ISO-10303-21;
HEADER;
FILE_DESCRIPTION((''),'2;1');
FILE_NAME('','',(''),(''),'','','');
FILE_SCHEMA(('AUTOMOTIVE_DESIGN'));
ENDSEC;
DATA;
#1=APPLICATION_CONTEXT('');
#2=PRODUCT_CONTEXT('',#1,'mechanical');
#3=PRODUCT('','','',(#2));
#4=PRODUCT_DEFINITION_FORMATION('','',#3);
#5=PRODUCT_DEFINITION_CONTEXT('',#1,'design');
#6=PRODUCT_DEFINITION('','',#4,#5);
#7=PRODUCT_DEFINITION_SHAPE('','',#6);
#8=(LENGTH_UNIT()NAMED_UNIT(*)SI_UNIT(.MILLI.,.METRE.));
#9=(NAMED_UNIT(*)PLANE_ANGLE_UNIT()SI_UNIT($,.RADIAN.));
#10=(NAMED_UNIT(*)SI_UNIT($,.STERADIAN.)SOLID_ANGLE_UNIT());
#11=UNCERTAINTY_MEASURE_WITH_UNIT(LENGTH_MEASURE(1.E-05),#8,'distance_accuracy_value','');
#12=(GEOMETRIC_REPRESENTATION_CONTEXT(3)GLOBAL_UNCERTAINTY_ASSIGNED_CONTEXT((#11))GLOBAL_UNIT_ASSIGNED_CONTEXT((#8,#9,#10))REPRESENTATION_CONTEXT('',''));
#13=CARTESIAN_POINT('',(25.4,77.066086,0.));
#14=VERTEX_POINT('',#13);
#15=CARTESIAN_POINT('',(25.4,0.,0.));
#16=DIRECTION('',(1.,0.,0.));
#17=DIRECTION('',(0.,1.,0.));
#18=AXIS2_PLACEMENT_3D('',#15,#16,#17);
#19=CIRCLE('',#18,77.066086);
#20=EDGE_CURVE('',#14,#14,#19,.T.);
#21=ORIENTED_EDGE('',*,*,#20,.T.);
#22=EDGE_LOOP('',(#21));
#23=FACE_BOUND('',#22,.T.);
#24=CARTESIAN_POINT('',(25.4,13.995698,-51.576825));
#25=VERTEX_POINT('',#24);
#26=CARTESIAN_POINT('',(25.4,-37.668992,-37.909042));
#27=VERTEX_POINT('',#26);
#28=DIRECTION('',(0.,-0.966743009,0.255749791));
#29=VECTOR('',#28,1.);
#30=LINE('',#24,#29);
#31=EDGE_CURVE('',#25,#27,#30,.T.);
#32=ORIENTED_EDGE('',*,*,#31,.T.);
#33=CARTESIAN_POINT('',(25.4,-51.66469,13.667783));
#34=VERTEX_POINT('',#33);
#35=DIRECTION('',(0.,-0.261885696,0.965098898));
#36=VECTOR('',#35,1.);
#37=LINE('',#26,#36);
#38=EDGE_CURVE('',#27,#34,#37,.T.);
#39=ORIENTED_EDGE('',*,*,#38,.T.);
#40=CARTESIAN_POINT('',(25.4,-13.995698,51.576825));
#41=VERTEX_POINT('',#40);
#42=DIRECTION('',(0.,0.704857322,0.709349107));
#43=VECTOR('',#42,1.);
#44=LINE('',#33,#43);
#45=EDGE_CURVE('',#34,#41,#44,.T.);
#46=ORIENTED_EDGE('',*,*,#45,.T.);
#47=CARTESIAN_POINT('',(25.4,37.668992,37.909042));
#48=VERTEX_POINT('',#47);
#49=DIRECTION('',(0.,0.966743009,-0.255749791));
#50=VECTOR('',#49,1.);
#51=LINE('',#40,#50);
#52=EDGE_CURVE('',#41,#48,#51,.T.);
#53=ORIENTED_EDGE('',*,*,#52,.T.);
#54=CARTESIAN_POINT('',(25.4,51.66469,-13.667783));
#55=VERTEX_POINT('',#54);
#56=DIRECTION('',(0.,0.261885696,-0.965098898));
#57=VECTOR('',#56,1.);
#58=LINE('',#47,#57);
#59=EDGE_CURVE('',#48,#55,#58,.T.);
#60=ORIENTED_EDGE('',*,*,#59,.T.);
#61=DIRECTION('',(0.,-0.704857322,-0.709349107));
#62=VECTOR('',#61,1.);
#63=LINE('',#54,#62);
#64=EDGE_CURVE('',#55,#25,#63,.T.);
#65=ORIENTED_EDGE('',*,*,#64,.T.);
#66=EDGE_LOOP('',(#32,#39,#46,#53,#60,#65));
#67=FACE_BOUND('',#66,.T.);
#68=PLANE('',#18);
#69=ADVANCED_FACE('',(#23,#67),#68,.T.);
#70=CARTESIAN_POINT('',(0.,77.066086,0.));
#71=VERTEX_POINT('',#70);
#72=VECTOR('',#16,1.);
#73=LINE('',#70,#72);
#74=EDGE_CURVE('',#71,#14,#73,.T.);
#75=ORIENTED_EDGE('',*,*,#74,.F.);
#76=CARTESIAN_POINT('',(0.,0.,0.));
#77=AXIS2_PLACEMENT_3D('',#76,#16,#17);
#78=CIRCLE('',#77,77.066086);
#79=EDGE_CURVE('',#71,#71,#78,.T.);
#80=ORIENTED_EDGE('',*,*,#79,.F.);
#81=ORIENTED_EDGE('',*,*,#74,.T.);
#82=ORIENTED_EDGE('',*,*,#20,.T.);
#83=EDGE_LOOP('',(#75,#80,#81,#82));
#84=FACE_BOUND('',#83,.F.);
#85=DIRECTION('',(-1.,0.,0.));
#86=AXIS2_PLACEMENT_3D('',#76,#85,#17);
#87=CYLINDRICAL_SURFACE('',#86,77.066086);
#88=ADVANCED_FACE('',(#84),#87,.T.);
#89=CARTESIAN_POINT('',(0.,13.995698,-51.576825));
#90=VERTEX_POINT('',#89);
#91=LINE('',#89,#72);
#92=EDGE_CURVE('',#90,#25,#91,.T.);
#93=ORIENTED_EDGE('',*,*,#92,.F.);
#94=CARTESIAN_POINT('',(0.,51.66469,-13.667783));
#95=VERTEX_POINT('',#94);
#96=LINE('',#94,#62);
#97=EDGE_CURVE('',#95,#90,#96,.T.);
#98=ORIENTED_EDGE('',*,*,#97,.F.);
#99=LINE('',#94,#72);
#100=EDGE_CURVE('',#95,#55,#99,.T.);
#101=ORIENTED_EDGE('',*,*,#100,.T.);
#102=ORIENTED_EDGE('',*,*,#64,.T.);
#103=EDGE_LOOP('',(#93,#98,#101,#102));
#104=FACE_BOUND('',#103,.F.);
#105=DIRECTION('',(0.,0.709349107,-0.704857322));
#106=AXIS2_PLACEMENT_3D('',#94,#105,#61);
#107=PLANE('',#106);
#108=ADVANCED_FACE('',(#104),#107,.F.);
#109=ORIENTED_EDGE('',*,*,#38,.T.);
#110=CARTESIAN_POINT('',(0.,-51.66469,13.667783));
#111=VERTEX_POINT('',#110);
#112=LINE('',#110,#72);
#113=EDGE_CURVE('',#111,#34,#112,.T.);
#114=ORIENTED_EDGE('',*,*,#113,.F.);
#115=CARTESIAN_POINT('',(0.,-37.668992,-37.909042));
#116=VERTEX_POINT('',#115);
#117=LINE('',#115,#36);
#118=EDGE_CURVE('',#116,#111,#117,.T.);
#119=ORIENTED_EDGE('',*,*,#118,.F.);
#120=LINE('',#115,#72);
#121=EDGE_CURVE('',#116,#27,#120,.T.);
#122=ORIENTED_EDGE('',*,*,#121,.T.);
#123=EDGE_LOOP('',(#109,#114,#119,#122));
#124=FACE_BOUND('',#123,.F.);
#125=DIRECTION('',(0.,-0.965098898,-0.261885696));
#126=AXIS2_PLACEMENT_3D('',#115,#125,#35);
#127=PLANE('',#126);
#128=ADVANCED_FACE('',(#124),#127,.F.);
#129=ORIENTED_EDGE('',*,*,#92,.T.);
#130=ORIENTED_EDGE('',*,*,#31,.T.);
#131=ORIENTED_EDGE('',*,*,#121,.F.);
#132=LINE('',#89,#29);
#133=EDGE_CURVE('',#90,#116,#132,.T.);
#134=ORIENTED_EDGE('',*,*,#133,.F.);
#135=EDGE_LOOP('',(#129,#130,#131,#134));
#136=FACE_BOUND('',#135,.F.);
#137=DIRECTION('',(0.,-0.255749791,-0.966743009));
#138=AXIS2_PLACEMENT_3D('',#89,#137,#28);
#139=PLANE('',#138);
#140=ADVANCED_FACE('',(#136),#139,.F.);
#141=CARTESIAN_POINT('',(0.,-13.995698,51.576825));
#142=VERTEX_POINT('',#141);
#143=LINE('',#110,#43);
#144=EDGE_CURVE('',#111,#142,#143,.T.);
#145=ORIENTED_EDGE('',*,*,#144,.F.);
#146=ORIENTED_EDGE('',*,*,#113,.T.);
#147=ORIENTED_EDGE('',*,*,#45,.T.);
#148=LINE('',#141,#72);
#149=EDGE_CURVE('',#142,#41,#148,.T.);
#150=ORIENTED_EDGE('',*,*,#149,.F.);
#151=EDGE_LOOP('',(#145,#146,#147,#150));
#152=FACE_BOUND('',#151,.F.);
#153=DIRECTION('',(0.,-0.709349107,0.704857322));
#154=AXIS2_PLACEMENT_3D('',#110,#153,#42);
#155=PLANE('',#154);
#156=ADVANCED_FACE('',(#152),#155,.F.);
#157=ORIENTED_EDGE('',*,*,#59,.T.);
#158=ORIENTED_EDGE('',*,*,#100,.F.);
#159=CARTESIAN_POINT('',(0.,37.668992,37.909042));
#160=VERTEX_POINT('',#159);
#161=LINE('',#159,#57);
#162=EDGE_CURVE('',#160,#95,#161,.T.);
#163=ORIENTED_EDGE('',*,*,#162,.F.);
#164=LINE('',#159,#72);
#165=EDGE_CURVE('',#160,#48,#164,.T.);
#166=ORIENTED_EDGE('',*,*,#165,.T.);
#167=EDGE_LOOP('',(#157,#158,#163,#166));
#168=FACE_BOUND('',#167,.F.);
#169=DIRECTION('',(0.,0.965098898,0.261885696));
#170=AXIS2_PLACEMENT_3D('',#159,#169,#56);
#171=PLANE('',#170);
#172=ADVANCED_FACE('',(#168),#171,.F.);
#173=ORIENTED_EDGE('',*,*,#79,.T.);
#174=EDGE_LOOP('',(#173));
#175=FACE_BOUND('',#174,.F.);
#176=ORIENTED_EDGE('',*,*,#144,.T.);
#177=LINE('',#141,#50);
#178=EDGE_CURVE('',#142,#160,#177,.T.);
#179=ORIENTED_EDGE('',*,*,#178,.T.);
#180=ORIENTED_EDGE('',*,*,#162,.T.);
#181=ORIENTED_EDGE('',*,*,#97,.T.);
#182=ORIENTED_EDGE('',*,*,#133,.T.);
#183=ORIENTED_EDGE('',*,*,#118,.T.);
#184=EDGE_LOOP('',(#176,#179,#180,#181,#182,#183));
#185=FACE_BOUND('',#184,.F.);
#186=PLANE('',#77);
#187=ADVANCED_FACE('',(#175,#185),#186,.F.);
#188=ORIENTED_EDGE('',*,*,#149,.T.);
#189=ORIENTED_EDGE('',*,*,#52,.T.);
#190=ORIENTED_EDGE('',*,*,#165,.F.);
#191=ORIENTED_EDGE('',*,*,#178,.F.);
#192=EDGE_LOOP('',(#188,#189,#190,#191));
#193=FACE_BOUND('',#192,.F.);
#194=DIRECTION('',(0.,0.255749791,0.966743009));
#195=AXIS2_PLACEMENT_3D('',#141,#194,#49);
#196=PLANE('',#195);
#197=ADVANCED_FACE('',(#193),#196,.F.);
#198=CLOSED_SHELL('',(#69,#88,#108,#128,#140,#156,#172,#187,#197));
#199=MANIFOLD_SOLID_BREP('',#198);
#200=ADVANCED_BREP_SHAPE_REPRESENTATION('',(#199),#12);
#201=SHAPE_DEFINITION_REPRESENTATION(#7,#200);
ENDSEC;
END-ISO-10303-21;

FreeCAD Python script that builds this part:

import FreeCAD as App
import Part
import Sketcher
Q = App.Units.Quantity

doc = App.newDocument("Part")
body = doc.addObject("PartDesign::Body", "Body")

sketch1 = body.newObject("Sketcher::SketchObject", "Sketch")
sketch1.AttachmentSupport = (doc.getObject("YZ_Plane"), [""])
sketch1.MapMode = "FlatFace"
sketch1.addGeometry(Part.Circle(App.Vector(0, 0, 0), App.Vector(0, 0, 1), 77), False)
sketch1.addConstraint([
    Sketcher.Constraint("Coincident", 0, 3, -1, 1),
    Sketcher.Constraint("Diameter", 0, Q("154.132172 mm")),
])
pad1 = body.newObject("PartDesign::Pad", "Pad")
pad1.Profile = sketch1
pad1.Length = Q("1 in")

sketch2 = body.newObject("Sketcher::SketchObject", "Sketch001")
sketch2.AttachmentSupport = (doc.getObject("YZ_Plane"), [""])
sketch2.MapMode = "FlatFace"
sketch2.addGeometry([
    Part.LineSegment(App.Vector(-52, 14, 0), App.Vector(-14, 52, 0)),
    Part.LineSegment(App.Vector(-14, 52, 0), App.Vector(38, 38, 0)),
    Part.LineSegment(App.Vector(38, 38, 0), App.Vector(52, -14, 0)),
    Part.LineSegment(App.Vector(52, -14, 0), App.Vector(14, -52, 0)),
    Part.LineSegment(App.Vector(14, -52, 0), App.Vector(-38, -38, 0)),
    Part.LineSegment(App.Vector(-38, -38, 0), App.Vector(-52, 14, 0)),
], False)
sketch2.addConstraint([
    Sketcher.Constraint("Coincident", 0, 2, 1, 1),
    Sketcher.Constraint("Coincident", 1, 2, 2, 1),
    Sketcher.Constraint("Coincident", 2, 2, 3, 1),
    Sketcher.Constraint("Coincident", 3, 2, 4, 1),
    Sketcher.Constraint("Coincident", 4, 2, 5, 1),
    Sketcher.Constraint("Coincident", 5, 2, 0, 1),
    Sketcher.Constraint("Symmetric", 0, 2, 3, 2, -1, 1),
    Sketcher.Constraint("Symmetric", 1, 2, 4, 2, -1, 1),
    Sketcher.Constraint("Symmetric", 2, 2, 5, 2, -1, 1),
    Sketcher.Constraint("Equal", 0, 1),
    Sketcher.Constraint("Equal", 1, 2),
    Sketcher.Constraint("DistanceX", 0, 2, -1, 1, Q("13.995698 mm")),
    Sketcher.Constraint("Distance", 0, Q("53.44201 mm")),
    Sketcher.Constraint("DistanceX", -1, 1, 2, 2, Q("51.66469 mm")),
    Sketcher.Constraint("DistanceX", 0, 2, 1, 2, Q("51.66469 mm")),
])
pocket1 = body.newObject("PartDesign::Pocket", "Pocket")
pocket1.Profile = sketch2
pocket1.Length = Q("1 in")
pocket1.Reversed = True

doc.recompute()
